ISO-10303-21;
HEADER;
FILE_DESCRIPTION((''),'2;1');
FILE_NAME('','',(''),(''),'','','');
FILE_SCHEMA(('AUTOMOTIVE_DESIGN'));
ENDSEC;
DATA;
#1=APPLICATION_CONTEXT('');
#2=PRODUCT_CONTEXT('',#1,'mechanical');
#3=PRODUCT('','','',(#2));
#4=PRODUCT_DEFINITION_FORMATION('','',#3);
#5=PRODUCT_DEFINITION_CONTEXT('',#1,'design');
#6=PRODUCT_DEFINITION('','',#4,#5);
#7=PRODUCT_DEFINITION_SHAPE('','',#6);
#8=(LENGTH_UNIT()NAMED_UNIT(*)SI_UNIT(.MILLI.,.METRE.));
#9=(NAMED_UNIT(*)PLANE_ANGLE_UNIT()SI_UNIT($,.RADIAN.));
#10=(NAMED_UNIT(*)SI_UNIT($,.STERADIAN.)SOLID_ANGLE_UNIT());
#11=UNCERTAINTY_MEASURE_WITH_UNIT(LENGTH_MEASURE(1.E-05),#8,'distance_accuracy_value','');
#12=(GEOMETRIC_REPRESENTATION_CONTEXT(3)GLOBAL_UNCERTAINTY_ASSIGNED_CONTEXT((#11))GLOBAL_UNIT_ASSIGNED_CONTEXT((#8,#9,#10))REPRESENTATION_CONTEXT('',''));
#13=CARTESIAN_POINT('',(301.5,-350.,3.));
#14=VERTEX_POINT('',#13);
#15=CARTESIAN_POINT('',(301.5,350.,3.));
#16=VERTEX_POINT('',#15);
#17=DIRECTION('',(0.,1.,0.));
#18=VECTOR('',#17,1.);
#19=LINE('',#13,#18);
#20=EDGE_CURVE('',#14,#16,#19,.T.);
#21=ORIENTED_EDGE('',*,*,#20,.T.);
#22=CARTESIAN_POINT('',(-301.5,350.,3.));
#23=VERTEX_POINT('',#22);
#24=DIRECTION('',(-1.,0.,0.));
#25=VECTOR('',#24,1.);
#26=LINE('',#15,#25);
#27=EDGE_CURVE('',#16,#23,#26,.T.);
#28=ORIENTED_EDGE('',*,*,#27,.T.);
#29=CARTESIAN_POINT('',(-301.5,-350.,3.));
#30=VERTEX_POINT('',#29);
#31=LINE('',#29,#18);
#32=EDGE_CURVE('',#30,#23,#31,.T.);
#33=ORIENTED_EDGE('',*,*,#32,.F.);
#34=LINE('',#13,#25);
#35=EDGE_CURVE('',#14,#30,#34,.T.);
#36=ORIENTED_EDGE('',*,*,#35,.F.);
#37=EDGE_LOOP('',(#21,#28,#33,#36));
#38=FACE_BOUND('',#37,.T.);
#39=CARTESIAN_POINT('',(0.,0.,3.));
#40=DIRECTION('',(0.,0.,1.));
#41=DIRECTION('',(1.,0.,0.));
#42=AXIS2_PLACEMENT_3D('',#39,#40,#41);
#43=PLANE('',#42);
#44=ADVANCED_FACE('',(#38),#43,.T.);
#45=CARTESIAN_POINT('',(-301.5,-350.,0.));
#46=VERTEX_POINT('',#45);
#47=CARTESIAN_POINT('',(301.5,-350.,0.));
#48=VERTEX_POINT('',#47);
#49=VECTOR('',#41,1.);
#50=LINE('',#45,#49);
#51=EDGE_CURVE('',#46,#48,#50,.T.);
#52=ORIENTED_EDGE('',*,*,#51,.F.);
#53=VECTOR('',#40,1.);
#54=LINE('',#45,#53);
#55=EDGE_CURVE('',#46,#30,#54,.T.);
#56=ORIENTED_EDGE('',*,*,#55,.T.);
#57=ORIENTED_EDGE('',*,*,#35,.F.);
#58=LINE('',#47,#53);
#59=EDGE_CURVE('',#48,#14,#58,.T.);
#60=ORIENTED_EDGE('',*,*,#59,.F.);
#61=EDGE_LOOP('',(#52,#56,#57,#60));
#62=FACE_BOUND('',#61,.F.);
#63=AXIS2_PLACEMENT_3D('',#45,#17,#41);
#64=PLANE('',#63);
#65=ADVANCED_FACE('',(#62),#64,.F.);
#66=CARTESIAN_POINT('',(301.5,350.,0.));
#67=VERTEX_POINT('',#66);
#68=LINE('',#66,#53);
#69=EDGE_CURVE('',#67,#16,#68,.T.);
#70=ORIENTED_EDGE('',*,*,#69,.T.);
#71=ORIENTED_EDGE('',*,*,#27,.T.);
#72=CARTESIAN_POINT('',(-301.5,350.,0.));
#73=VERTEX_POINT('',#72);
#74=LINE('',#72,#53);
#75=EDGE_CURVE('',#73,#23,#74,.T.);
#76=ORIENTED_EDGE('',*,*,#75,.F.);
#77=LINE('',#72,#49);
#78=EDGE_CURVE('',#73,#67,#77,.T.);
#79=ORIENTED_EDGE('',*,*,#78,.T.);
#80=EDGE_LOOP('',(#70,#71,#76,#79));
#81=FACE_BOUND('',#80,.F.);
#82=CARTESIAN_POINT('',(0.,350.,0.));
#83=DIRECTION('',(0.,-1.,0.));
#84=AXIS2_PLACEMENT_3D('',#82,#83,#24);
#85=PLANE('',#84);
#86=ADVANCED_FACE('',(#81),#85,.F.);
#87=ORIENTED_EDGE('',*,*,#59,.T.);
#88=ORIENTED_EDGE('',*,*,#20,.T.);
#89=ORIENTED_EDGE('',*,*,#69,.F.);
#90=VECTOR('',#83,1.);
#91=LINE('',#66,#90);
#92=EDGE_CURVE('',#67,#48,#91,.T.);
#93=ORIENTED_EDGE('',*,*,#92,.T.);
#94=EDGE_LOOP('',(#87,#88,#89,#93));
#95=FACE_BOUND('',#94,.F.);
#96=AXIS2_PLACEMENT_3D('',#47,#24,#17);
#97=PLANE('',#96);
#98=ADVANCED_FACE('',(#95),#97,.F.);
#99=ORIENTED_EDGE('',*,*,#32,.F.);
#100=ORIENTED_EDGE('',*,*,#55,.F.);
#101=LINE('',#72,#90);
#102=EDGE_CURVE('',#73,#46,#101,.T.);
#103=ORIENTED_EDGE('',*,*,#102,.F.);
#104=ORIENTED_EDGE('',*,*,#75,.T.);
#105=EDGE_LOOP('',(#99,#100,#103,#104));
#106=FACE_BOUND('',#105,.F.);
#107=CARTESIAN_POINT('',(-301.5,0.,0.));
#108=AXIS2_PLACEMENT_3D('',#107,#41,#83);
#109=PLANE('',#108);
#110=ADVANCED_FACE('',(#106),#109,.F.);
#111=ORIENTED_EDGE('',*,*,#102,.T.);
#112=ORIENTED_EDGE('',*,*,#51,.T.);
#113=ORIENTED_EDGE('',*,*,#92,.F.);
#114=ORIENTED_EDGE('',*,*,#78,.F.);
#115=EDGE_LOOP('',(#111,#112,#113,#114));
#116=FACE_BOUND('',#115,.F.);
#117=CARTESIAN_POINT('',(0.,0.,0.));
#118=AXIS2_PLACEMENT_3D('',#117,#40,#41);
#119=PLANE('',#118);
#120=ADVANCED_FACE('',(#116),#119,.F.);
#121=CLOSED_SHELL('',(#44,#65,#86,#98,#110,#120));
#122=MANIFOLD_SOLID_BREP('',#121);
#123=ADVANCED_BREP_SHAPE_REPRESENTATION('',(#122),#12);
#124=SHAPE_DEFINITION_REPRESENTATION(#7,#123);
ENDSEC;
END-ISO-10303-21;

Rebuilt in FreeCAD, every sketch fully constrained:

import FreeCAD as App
import Part
import Sketcher

V = App.Vector

doc = App.newDocument("Part")
body = doc.addObject("PartDesign::Body", "Body")

sketch1 = body.newObject("Sketcher::SketchObject", "Sketch")
sketch1.AttachmentSupport = (doc.getObject("XY_Plane"), [""])
sketch1.MapMode = "FlatFace"
sketch1.addGeometry([
    Part.LineSegment(V(-301.5, -350, 0), V(301.5, -350, 0)),
    Part.LineSegment(V(301.5, -350, 0), V(301.5, 350, 0)),
    Part.LineSegment(V(301.5, 350, 0), V(-301.5, 350, 0)),
    Part.LineSegment(V(-301.5, 350, 0), V(-301.5, -350, 0)),
], False)
sketch1.addConstraint([
    Sketcher.Constraint("Coincident", 0, 2, 1, 1),
    Sketcher.Constraint("Coincident", 1, 2, 2, 1),
    Sketcher.Constraint("Coincident", 2, 2, 3, 1),
    Sketcher.Constraint("Coincident", 3, 2, 0, 1),
    Sketcher.Constraint("Horizontal", 0),
    Sketcher.Constraint("Vertical", 1),
    Sketcher.Constraint("Horizontal", 2),
    Sketcher.Constraint("Vertical", 3),
    Sketcher.Constraint("Symmetric", 0, 2, 2, 2, -1, 1),
    Sketcher.Constraint("DistanceX", 0, 1, 0, 2, 603.0),
    Sketcher.Constraint("DistanceY", 1, 1, 1, 2, 700.0),
])
pad1 = body.newObject("PartDesign::Pad", "Pad")
pad1.Profile = sketch1
pad1.Length = 3

doc.recompute()
